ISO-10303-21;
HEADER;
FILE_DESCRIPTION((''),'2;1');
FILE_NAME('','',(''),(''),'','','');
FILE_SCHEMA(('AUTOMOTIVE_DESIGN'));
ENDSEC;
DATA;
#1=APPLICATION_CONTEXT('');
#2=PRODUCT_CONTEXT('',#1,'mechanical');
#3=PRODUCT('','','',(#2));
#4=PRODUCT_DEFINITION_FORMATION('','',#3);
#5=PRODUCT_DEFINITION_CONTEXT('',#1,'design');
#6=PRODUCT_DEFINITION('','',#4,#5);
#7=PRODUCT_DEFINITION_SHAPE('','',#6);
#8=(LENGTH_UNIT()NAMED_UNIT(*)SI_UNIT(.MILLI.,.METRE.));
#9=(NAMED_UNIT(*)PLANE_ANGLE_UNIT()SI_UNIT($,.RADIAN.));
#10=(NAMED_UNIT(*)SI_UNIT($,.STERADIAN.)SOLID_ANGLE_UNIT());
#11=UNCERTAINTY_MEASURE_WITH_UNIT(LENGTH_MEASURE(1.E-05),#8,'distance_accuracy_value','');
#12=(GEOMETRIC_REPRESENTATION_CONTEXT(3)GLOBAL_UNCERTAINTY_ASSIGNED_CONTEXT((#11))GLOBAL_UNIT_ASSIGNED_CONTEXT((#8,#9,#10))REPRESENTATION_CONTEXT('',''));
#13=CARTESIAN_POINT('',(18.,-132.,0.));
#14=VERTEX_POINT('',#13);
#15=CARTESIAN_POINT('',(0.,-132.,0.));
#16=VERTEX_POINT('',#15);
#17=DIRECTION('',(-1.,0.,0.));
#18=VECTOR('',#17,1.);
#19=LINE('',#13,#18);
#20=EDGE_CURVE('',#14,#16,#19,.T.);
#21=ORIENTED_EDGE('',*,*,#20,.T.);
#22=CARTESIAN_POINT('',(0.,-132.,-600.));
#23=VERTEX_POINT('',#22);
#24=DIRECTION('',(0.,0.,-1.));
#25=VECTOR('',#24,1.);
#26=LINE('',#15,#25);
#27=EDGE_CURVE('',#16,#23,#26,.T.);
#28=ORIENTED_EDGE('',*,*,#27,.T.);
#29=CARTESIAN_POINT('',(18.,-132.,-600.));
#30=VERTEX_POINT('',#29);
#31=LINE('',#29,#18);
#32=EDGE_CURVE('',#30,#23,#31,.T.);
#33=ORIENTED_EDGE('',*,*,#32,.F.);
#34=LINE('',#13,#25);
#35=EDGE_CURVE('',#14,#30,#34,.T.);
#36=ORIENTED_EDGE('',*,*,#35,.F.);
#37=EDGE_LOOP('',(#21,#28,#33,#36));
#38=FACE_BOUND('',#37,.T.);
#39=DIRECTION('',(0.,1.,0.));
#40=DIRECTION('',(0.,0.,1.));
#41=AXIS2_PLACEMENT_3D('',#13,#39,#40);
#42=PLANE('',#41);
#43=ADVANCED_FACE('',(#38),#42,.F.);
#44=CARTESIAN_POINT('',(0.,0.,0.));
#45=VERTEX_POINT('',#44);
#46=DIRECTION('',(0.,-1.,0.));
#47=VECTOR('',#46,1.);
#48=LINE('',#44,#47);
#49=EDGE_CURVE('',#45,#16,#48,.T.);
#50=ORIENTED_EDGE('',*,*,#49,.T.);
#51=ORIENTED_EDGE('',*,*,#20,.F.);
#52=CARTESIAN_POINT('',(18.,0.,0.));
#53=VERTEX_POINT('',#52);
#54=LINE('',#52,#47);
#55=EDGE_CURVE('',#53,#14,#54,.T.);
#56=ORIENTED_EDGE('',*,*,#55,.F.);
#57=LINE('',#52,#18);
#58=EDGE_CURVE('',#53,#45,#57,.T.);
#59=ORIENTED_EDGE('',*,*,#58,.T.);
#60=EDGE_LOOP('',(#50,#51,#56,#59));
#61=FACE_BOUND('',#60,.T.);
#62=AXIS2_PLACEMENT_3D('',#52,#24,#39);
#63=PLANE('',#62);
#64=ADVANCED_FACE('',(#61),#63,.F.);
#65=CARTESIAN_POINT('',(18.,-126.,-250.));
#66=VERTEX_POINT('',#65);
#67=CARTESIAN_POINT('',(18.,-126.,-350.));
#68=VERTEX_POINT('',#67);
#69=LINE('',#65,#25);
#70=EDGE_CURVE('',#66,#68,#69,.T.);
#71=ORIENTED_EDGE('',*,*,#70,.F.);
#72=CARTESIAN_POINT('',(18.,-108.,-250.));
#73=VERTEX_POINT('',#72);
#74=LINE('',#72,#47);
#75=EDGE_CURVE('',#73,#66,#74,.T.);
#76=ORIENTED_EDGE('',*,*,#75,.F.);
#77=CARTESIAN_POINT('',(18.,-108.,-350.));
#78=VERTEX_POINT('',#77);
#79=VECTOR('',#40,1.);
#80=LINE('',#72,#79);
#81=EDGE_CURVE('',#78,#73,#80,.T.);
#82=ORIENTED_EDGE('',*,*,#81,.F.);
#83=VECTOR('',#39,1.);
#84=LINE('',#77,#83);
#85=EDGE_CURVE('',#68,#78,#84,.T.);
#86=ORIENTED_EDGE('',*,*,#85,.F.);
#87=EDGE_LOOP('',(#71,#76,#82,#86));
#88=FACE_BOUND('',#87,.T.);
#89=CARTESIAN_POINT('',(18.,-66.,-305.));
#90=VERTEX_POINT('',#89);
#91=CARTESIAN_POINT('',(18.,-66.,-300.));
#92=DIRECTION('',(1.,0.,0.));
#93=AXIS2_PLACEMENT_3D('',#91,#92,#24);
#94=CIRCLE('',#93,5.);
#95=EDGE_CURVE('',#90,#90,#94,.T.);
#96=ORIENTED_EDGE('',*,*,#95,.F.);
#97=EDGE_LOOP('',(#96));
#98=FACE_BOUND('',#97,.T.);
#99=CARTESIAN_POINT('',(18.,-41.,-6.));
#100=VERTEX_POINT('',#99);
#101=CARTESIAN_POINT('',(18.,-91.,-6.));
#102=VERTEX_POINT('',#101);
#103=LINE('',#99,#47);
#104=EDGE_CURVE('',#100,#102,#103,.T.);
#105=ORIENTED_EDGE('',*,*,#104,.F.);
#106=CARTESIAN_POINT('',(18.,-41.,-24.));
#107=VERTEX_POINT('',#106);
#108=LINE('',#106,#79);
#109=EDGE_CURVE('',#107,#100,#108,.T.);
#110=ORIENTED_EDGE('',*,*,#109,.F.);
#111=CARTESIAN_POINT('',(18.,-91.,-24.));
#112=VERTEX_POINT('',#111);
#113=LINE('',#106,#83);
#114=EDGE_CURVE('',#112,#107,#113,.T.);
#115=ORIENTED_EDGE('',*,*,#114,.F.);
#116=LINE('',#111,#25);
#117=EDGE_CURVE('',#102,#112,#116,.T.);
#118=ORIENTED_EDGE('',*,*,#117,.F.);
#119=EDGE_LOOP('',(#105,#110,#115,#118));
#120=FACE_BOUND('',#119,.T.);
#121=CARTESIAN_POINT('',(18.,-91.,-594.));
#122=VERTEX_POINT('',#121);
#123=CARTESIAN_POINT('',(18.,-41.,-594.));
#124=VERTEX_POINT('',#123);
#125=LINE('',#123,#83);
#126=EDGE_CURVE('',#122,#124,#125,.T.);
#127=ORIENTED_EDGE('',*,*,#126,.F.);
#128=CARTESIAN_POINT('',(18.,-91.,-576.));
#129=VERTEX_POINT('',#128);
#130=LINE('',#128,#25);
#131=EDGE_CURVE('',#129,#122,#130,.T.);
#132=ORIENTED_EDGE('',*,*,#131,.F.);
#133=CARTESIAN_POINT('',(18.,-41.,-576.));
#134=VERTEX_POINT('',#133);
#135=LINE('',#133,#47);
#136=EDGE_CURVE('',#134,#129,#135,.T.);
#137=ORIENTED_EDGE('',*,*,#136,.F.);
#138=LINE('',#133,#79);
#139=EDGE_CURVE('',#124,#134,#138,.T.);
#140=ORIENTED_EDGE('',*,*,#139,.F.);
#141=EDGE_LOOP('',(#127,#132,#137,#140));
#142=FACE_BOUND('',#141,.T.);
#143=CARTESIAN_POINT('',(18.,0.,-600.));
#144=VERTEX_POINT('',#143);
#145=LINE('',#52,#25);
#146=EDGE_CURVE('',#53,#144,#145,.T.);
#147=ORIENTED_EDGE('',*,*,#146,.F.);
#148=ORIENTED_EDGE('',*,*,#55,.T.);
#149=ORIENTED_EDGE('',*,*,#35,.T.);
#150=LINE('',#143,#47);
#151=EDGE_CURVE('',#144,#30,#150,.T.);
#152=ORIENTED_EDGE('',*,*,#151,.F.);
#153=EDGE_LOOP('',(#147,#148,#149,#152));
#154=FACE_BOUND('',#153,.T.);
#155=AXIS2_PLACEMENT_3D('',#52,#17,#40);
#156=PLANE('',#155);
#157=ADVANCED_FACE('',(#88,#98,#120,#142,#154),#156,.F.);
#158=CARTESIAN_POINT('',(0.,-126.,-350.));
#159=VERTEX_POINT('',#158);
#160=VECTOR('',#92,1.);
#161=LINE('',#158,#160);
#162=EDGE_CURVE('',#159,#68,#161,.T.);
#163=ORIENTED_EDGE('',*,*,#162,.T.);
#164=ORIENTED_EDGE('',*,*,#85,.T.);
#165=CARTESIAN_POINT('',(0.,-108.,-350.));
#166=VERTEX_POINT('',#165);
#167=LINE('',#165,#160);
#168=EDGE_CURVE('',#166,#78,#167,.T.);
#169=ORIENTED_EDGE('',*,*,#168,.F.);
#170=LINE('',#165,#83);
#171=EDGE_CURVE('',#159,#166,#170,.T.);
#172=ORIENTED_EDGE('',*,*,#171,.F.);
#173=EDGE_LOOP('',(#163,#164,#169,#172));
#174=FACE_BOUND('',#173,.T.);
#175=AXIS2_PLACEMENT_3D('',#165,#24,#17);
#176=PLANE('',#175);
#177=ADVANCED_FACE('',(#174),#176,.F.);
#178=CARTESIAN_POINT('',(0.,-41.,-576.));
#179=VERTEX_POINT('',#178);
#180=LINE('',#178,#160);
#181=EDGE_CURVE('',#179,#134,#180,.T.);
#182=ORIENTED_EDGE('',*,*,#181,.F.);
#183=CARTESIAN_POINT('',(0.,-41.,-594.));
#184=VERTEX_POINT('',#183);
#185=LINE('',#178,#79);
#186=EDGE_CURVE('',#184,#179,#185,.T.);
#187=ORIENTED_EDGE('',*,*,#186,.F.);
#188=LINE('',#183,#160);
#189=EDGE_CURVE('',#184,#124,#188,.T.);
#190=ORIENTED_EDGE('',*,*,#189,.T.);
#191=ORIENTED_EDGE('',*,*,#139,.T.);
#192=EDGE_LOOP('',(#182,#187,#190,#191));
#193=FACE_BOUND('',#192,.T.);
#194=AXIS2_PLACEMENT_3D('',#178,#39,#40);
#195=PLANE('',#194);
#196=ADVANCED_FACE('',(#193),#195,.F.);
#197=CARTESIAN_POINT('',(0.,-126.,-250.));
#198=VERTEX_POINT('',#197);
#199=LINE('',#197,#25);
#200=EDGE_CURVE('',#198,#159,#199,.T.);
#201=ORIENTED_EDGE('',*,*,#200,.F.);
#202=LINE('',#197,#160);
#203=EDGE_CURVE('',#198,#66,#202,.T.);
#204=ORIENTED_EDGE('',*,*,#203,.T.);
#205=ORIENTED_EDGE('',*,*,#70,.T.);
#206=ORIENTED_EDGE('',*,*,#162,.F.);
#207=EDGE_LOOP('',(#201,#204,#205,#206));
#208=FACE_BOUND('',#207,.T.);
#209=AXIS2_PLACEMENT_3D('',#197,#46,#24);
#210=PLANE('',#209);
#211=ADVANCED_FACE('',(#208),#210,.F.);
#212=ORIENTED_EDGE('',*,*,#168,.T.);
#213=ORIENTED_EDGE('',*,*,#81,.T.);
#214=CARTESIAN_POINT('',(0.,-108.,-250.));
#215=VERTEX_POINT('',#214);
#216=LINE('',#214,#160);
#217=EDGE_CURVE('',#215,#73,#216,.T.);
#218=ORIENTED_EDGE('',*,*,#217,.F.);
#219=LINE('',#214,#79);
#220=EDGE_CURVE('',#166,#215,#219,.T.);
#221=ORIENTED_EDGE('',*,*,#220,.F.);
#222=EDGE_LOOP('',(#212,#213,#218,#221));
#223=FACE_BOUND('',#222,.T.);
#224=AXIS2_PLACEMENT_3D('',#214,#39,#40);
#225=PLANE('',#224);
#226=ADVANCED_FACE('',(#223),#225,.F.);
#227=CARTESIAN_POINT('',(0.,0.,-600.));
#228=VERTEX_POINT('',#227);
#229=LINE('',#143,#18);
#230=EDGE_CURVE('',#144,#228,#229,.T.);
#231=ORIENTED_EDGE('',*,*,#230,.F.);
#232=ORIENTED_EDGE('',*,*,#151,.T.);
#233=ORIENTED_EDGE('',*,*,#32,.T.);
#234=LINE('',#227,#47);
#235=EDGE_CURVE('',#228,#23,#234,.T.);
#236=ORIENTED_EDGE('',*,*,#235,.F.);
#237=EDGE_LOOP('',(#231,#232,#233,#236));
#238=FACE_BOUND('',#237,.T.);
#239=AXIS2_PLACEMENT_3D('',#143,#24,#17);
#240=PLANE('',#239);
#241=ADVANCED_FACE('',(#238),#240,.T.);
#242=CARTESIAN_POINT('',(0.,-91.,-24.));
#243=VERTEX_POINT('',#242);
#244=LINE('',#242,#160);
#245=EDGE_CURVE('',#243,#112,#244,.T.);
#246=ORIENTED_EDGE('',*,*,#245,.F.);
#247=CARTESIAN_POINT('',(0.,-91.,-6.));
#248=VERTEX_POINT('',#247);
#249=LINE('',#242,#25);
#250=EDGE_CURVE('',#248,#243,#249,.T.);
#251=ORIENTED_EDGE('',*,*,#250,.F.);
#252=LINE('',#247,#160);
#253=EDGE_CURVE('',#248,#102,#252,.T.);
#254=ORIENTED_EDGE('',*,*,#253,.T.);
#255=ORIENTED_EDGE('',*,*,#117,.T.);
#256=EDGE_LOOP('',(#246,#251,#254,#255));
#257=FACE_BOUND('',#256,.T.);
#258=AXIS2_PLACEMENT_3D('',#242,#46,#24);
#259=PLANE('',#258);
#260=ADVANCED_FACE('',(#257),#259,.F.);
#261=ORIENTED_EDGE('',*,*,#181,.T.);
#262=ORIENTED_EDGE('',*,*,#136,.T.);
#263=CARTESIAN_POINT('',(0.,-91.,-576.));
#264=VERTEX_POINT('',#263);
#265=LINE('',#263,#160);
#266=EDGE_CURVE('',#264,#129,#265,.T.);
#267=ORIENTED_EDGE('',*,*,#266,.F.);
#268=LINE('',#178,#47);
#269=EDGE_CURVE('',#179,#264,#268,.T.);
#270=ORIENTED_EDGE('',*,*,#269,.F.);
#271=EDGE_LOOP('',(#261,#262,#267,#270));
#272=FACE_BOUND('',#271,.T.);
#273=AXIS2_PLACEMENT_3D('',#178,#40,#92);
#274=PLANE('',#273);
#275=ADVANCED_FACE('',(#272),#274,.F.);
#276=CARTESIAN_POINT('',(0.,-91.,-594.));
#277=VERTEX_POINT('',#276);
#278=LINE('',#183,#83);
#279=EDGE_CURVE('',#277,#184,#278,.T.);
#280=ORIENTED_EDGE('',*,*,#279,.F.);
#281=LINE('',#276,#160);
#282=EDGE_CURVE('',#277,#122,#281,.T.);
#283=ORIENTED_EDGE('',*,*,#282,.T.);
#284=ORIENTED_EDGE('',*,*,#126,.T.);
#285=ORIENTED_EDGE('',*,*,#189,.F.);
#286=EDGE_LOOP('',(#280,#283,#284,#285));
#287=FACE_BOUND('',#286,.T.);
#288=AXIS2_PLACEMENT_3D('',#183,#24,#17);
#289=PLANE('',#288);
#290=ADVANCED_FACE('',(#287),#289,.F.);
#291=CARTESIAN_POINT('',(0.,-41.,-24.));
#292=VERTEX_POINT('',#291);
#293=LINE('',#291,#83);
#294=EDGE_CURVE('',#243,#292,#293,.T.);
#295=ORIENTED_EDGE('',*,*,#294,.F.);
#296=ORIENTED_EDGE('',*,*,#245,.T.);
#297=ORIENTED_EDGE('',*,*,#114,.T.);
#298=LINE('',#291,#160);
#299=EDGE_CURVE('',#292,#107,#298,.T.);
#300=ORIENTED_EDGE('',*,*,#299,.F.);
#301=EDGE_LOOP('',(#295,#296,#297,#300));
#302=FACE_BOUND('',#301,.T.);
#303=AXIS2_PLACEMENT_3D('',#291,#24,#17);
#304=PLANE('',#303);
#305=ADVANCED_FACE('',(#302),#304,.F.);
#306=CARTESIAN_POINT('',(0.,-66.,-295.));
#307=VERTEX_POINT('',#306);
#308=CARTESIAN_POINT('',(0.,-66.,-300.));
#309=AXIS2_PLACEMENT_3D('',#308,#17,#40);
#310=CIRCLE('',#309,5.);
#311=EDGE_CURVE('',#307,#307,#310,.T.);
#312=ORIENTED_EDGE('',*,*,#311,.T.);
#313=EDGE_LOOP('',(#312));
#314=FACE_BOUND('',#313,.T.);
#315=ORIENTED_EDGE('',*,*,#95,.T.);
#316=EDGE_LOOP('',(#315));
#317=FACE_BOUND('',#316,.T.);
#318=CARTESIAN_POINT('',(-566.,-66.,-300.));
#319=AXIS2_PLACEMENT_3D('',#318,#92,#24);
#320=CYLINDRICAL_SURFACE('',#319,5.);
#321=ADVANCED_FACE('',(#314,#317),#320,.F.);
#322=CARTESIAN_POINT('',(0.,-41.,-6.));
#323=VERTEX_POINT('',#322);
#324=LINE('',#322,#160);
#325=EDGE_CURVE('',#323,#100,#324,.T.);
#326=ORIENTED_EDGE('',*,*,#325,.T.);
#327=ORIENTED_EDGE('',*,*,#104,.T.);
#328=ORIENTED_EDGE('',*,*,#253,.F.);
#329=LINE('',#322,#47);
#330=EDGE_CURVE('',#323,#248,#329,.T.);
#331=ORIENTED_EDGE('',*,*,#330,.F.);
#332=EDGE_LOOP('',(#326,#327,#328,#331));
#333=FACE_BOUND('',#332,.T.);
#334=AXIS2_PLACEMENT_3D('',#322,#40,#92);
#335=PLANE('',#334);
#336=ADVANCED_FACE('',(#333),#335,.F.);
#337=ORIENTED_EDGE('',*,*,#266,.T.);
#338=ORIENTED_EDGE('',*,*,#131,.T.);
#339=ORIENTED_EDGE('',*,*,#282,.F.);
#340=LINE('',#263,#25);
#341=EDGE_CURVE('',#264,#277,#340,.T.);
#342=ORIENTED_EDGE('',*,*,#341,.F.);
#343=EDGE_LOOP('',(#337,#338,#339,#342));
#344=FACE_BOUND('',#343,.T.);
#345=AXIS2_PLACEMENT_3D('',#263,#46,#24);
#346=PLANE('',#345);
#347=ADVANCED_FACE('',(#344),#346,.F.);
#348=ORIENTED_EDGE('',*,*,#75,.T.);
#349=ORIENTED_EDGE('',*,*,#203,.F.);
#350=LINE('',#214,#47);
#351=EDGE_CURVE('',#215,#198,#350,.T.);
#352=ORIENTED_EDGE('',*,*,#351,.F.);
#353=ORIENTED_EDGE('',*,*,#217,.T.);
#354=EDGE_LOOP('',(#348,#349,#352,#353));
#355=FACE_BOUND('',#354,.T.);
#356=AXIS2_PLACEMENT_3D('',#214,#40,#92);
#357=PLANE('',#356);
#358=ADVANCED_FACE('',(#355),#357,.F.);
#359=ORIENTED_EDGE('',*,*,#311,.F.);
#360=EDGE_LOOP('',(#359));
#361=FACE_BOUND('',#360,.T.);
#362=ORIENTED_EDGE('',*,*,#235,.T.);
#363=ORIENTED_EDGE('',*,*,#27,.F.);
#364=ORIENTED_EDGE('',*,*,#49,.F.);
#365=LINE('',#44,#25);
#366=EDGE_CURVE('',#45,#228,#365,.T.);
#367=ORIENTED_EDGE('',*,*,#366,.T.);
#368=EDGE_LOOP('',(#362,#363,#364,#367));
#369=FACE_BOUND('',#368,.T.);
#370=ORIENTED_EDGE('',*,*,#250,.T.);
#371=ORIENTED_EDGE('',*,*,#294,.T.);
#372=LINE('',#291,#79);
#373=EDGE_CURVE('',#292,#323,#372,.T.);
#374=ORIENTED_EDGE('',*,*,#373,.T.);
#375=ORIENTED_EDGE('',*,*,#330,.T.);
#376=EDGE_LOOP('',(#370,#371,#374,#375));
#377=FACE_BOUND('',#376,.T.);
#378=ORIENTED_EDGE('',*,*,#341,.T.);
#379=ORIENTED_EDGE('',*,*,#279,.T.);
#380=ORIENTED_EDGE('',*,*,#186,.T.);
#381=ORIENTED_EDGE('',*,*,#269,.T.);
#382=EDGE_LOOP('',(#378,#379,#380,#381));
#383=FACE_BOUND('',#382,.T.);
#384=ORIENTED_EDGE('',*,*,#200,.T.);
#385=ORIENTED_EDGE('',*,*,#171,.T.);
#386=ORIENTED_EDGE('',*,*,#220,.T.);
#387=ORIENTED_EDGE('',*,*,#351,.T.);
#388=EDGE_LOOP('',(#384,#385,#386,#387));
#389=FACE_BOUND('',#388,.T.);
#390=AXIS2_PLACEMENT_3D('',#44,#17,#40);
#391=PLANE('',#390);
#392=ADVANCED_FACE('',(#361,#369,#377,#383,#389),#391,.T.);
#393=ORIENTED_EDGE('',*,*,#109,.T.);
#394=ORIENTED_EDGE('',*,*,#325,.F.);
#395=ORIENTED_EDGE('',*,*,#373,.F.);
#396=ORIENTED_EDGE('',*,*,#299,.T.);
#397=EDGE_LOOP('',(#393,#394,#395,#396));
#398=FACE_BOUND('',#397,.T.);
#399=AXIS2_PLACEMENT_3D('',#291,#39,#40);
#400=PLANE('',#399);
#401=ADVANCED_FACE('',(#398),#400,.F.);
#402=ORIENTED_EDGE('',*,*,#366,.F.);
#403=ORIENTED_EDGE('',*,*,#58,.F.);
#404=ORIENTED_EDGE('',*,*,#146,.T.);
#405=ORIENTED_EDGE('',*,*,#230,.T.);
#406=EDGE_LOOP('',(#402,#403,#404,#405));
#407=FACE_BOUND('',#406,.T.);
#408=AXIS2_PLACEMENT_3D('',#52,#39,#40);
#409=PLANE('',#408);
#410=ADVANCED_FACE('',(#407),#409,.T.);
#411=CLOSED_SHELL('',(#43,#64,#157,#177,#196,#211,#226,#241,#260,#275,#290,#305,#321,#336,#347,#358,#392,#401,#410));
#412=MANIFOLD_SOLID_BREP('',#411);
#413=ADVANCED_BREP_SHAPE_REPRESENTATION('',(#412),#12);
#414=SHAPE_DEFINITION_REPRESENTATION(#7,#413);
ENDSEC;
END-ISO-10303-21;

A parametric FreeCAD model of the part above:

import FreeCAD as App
import Part
import Sketcher
from FreeCAD import Vector


def add_polygon(sketch, points):
    """Adds a closed chain of lines whose ends are joined by coincident constraints."""
    first, n = sketch.GeometryCount, len(points)
    for a, b in zip(points, points[1:] + points[:1]):
        sketch.addGeometry(Part.LineSegment(App.Vector(*a, 0), App.Vector(*b, 0)), False)
    for i in range(n):
        sketch.addConstraint(Sketcher.Constraint("Coincident", first + i, 2, first + (i + 1) % n, 1))

doc = App.newDocument("Part")
body = doc.addObject("PartDesign::Body", "Body")

sketch1 = body.newObject("Sketcher::SketchObject", "Sketch")
sketch1.AttachmentSupport = (doc.getObject("YZ_Plane"), [""])
sketch1.MapMode = "FlatFace"
add_polygon(sketch1, [(0, 0), (-132, 0), (-132, -600), (0, -600)])
sketch1.addConstraint(Sketcher.Constraint("Horizontal", 0))
sketch1.addConstraint(Sketcher.Constraint("Vertical", 1))
sketch1.addConstraint(Sketcher.Constraint("Horizontal", 2))
sketch1.addConstraint(Sketcher.Constraint("Vertical", 3))
sketch1.addConstraint(Sketcher.Constraint("Coincident", 3, 2, -1, 1))
sketch1.addConstraint(Sketcher.Constraint("DistanceX", 0, 2, 0, 1, 132.0))
sketch1.addConstraint(Sketcher.Constraint("DistanceY", 1, 2, 1, 1, 600.0))
pad1 = body.newObject("PartDesign::Pad", "Pad")
pad1.Profile = sketch1
pad1.Length = 18

sketch2 = body.newObject("Sketcher::SketchObject", "Sketch001")
sketch2.AttachmentSupport = (doc.getObject("YZ_Plane"), [""])
sketch2.MapMode = "FlatFace"
sketch2.AttachmentOffset = App.Placement(Vector(0, 0, 18), App.Rotation())
sketch2.addGeometry(Part.Circle(Vector(-66, -300, 0), Vector(0, 0, 1), 5), False)
sketch2.addConstraint(Sketcher.Constraint("Diameter", 0, 10.0))
sketch2.addConstraint(Sketcher.Constraint("DistanceX", 0, 3, -1, 1, 66.0))
sketch2.addConstraint(Sketcher.Constraint("DistanceY", 0, 3, -1, 1, 300.0))
pocket1 = body.newObject("PartDesign::Pocket", "Pocket")
pocket1.Profile = sketch2
pocket1.Length = 584

sketch3 = body.newObject("Sketcher::SketchObject", "Sketch002")
sketch3.AttachmentSupport = (doc.getObject("YZ_Plane"), [""])
sketch3.MapMode = "FlatFace"
sketch3.AttachmentOffset = App.Placement(Vector(0, 0, 18), App.Rotation())
add_polygon(sketch3, [(-41, -576), (-91, -576), (-91, -594), (-41, -594)])
add_polygon(sketch3, [(-41, -6), (-91, -6), (-91, -24), (-41, -24)])
sketch3.addConstraint(Sketcher.Constraint("Horizontal", 0))
sketch3.addConstraint(Sketcher.Constraint("Vertical", 1))
sketch3.addConstraint(Sketcher.Constraint("Horizontal", 2))
sketch3.addConstraint(Sketcher.Constraint("Vertical", 3))
sketch3.addConstraint(Sketcher.Constraint("Horizontal", 4))
sketch3.addConstraint(Sketcher.Constraint("Vertical", 5))
sketch3.addConstraint(Sketcher.Constraint("Horizontal", 6))
sketch3.addConstraint(Sketcher.Constraint("Vertical", 7))
sketch3.addConstraint(Sketcher.Constraint("Vertical", 1, 2, 4, 2))
sketch3.addConstraint(Sketcher.Constraint("Vertical", 3, 2, 6, 2))
sketch3.addConstraint(Sketcher.Constraint("Equal", 3, 5))
sketch3.addConstraint(Sketcher.Constraint("DistanceX", 0, 2, 0, 1, 50.0))
sketch3.addConstraint(Sketcher.Constraint("DistanceY", 1, 2, 1, 1, 18.0))
sketch3.addConstraint(Sketcher.Constraint("DistanceX", 0, 2, -1, 1, 91.0))
sketch3.addConstraint(Sketcher.Constraint("DistanceY", 0, 2, -1, 1, 576.0))
sketch3.addConstraint(Sketcher.Constraint("DistanceY", 4, 2, -1, 1, 6.0))
pocket2 = body.newObject("PartDesign::Pocket", "Pocket001")
pocket2.Profile = sketch3
pocket2.Type = "ThroughAll"

sketch4 = body.newObject("Sketcher::SketchObject", "Sketch003")
sketch4.AttachmentSupport = (doc.getObject("YZ_Plane"), [""])
sketch4.MapMode = "FlatFace"
sketch4.AttachmentOffset = App.Placement(Vector(0, 0, 18), App.Rotation())
add_polygon(sketch4, [(-108, -250), (-126, -250), (-126, -350), (-108, -350)])
sketch4.addConstraint(Sketcher.Constraint("Horizontal", 0))
sketch4.addConstraint(Sketcher.Constraint("Vertical", 1))
sketch4.addConstraint(Sketcher.Constraint("Horizontal", 2))
sketch4.addConstraint(Sketcher.Constraint("Vertical", 3))
sketch4.addConstraint(Sketcher.Constraint("DistanceX", 0, 2, 0, 1, 18.0))
sketch4.addConstraint(Sketcher.Constraint("DistanceY", 1, 2, 1, 1, 100.0))
sketch4.addConstraint(Sketcher.Constraint("DistanceX", 0, 2, -1, 1, 126.0))
sketch4.addConstraint(Sketcher.Constraint("DistanceY", 0, 2, -1, 1, 250.0))
pocket3 = body.newObject("PartDesign::Pocket", "Pocket002")
pocket3.Profile = sketch4
pocket3.Type = "ThroughAll"

doc.recompute()
